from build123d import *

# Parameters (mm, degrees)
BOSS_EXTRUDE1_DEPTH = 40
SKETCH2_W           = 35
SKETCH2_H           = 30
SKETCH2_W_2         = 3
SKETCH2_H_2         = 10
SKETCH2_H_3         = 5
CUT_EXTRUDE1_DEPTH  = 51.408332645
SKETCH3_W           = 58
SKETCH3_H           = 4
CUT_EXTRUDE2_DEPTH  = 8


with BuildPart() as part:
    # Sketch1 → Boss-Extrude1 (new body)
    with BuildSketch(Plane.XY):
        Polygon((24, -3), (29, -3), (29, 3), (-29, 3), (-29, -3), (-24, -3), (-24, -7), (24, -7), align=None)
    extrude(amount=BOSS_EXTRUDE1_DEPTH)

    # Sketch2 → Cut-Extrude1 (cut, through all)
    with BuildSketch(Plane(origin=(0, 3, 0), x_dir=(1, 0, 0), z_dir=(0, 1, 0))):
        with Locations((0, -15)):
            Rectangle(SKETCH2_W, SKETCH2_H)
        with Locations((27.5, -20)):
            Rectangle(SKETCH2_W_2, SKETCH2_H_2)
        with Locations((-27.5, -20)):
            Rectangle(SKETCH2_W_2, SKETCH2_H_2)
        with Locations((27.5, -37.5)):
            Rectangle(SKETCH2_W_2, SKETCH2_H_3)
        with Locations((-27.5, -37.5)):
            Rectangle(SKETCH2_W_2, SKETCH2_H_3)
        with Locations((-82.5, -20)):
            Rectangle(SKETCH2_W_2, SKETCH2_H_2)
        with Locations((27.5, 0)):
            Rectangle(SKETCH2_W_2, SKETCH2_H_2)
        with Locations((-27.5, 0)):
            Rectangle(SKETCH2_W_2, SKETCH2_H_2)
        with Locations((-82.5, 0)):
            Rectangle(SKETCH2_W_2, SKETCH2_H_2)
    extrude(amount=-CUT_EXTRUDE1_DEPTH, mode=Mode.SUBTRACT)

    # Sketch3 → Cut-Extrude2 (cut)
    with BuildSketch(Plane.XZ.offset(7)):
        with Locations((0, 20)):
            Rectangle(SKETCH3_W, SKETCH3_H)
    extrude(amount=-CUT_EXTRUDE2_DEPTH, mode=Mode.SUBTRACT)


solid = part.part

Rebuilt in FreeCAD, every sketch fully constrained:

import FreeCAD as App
import Part
import Sketcher

V = App.Vector


def add_polygon(sketch, points):
    """Adds a closed chain of lines whose ends are joined by coincident constraints."""
    first, n = sketch.GeometryCount, len(points)
    for a, b in zip(points, points[1:] + points[:1]):
        sketch.addGeometry(Part.LineSegment(App.Vector(*a, 0), App.Vector(*b, 0)), False)
    for i in range(n):
        sketch.addConstraint(Sketcher.Constraint("Coincident", first + i, 2, first + (i + 1) % n, 1))

doc = App.newDocument("Part")
body = doc.addObject("PartDesign::Body", "Body")

# Sketch on XY plane
sketch1 = doc.addObject("Sketcher::SketchObject", "Sketch")
body.addObject(sketch1)
sketch1.AttachmentSupport = (doc.XY_Plane, [""])
sketch1.MapMode = "FlatFace"
add_polygon(sketch1, [(24, -3), (29, -3), (29, 3), (-29, 3), (-29, -3), (-24, -3), (-24, -7), (24, -7)])  # lines 0-7
sketch1.addConstraint(Sketcher.Constraint("Horizontal", 0))
sketch1.addConstraint(Sketcher.Constraint("Vertical", 1))
sketch1.addConstraint(Sketcher.Constraint("Horizontal", 2))
sketch1.addConstraint(Sketcher.Constraint("Vertical", 3))
sketch1.addConstraint(Sketcher.Constraint("Horizontal", 4))
sketch1.addConstraint(Sketcher.Constraint("Vertical", 5))
sketch1.addConstraint(Sketcher.Constraint("Horizontal", 6))
sketch1.addConstraint(Sketcher.Constraint("Vertical", 7))
sketch1.addConstraint(Sketcher.Constraint("Symmetric", 0, 2, 2, 2, -1, 1))
sketch1.addConstraint(Sketcher.Constraint("Symmetric", 4, 2, 7, 2, -2))
sketch1.addConstraint(Sketcher.Constraint("DistanceX", 0, 1, 0, 2, 5.0))
sketch1.addConstraint(Sketcher.Constraint("DistanceX", 2, 2, 2, 1, 58.0))
sketch1.addConstraint(Sketcher.Constraint("DistanceY", 1, 1, 1, 2, 6.0))
sketch1.addConstraint(Sketcher.Constraint("DistanceY", 5, 2, 5, 1, 4.0))
pad1 = doc.addObject("PartDesign::Pad", "Pad")
body.addObject(pad1)
pad1.Profile = sketch1
pad1.Length = 40

# Sketch on XZ plane
sketch2 = doc.addObject("Sketcher::SketchObject", "Sketch001")
body.addObject(sketch2)
sketch2.AttachmentSupport = (doc.XZ_Plane, [""])
sketch2.MapMode = "FlatFace"
sketch2.AttachmentOffset = App.Placement(V(0, 0, -3), App.Rotation())
add_polygon(sketch2, [(-17.5, 0), (-17.5, 30), (17.5, 30), (17.5, 0)])  # lines 0-3
add_polygon(sketch2, [(26, 15), (26, 25), (29, 25), (29, 15)])  # lines 4-7
add_polygon(sketch2, [(-29, 15), (-29, 25), (-26, 25), (-26, 15)])  # lines 8-11
add_polygon(sketch2, [(26, 35), (26, 40), (29, 40), (29, 35)])  # lines 12-15
add_polygon(sketch2, [(-29, 35), (-29, 40), (-26, 40), (-26, 35)])  # lines 16-19
add_polygon(sketch2, [(-84, 15), (-84, 25), (-81, 25), (-81, 15)])  # lines 20-23
add_polygon(sketch2, [(26, -5), (26, 5), (29, 5), (29, -5)])  # lines 24-27
add_polygon(sketch2, [(-29, -5), (-29, 5), (-26, 5), (-26, -5)])  # lines 28-31
add_polygon(sketch2, [(-84, -5), (-84, 5), (-81, 5), (-81, -5)])  # lines 32-35
sketch2.addConstraint(Sketcher.Constraint("Vertical", 0))
sketch2.addConstraint(Sketcher.Constraint("Horizontal", 1))
sketch2.addConstraint(Sketcher.Constraint("Vertical", 2))
sketch2.addConstraint(Sketcher.Constraint("Horizontal", 3))
sketch2.addConstraint(Sketcher.Constraint("Vertical", 4))
sketch2.addConstraint(Sketcher.Constraint("Horizontal", 5))
sketch2.addConstraint(Sketcher.Constraint("Vertical", 6))
sketch2.addConstraint(Sketcher.Constraint("Horizontal", 7))
sketch2.addConstraint(Sketcher.Constraint("Vertical", 8))
sketch2.addConstraint(Sketcher.Constraint("Horizontal", 9))
sketch2.addConstraint(Sketcher.Constraint("Vertical", 10))
sketch2.addConstraint(Sketcher.Constraint("Horizontal", 11))
sketch2.addConstraint(Sketcher.Constraint("Vertical", 12))
sketch2.addConstraint(Sketcher.Constraint("Horizontal", 13))
sketch2.addConstraint(Sketcher.Constraint("Vertical", 14))
sketch2.addConstraint(Sketcher.Constraint("Horizontal", 15))
sketch2.addConstraint(Sketcher.Constraint("Vertical", 16))
sketch2.addConstraint(Sketcher.Constraint("Horizontal", 17))
sketch2.addConstraint(Sketcher.Constraint("Vertical", 18))
sketch2.addConstraint(Sketcher.Constraint("Horizontal", 19))
sketch2.addConstraint(Sketcher.Constraint("Vertical", 20))
sketch2.addConstraint(Sketcher.Constraint("Horizontal", 21))
sketch2.addConstraint(Sketcher.Constraint("Vertical", 22))
sketch2.addConstraint(Sketcher.Constraint("Horizontal", 23))
sketch2.addConstraint(Sketcher.Constraint("Vertical", 24))
sketch2.addConstraint(Sketcher.Constraint("Horizontal", 25))
sketch2.addConstraint(Sketcher.Constraint("Vertical", 26))
sketch2.addConstraint(Sketcher.Constraint("Horizontal", 27))
sketch2.addConstraint(Sketcher.Constraint("Vertical", 28))
sketch2.addConstraint(Sketcher.Constraint("Horizontal", 29))
sketch2.addConstraint(Sketcher.Constraint("Vertical", 30))
sketch2.addConstraint(Sketcher.Constraint("Horizontal", 31))
sketch2.addConstraint(Sketcher.Constraint("Vertical", 32))
sketch2.addConstraint(Sketcher.Constraint("Horizontal", 33))
sketch2.addConstraint(Sketcher.Constraint("Vertical", 34))
sketch2.addConstraint(Sketcher.Constraint("Horizontal", 35))
sketch2.addConstraint(Sketcher.Constraint("Symmetric", 2, 2, 3, 2, -1, 1))
sketch2.addConstraint(Sketcher.Constraint("Symmetric", 26, 2, 28, 2, -1, 1))
sketch2.addConstraint(Sketcher.Constraint("Symmetric", 24, 2, 30, 2, -1, 1))
sketch2.addConstraint(Sketcher.Constraint("Symmetric", 5, 2, 8, 2, -2))
sketch2.addConstraint(Sketcher.Constraint("Symmetric", 7, 2, 10, 2, -2))
sketch2.addConstraint(Sketcher.Constraint("Symmetric", 13, 2, 16, 2, -2))
sketch2.addConstraint(Sketcher.Constraint("Symmetric", 15, 2, 18, 2, -2))
sketch2.addConstraint(Sketcher.Constraint("Horizontal", 9, 2, 20, 2))
sketch2.addConstraint(Sketcher.Constraint("Horizontal", 11, 2, 22, 2))
sketch2.addConstraint(Sketcher.Constraint("Horizontal", 25, 2, 28, 2))
sketch2.addConstraint(Sketcher.Constraint("Horizontal", 29, 2, 32, 2))
sketch2.addConstraint(Sketcher.Constraint("Horizontal", 31, 2, 34, 2))
sketch2.addConstraint(Sketcher.Constraint("Vertical", 7, 2, 12, 2))
sketch2.addConstraint(Sketcher.Constraint("Vertical", 6, 2, 13, 2))
sketch2.addConstraint(Sketcher.Constraint("Vertical", 15, 2, 24, 2))
sketch2.addConstraint(Sketcher.Constraint("Vertical", 14, 2, 25, 2))
sketch2.addConstraint(Sketcher.Constraint("Vertical", 23, 2, 32, 2))
sketch2.addConstraint(Sketcher.Constraint("Vertical", 22, 2, 33, 2))
sketch2.addConstraint(Sketcher.Constraint("Equal", 19, 21))
sketch2.addConstraint(Sketcher.Constraint("Equal", 22, 24))
sketch2.addConstraint(Sketcher.Constraint("DistanceX", 1, 1, 1, 2, 35.0))
sketch2.addConstraint(Sketcher.Constraint("DistanceX", 5, 1, 5, 2, 3.0))
sketch2.addConstraint(Sketcher.Constraint("DistanceY", 0, 1, 0, 2, 30.0))
sketch2.addConstraint(Sketcher.Constraint("DistanceY", 4, 1, 4, 2, 10.0))
sketch2.addConstraint(Sketcher.Constraint("DistanceY", 12, 1, 12, 2, 5.0))
sketch2.addConstraint(Sketcher.Constraint("DistanceX", -1, 1, 4, 2, 26.0))
sketch2.addConstraint(Sketcher.Constraint("DistanceY", -1, 1, 4, 2, 25.0))
sketch2.addConstraint(Sketcher.Constraint("DistanceY", -1, 1, 12, 2, 40.0))
sketch2.addConstraint(Sketcher.Constraint("DistanceX", 20, 2, -1, 1, 84.0))
pocket1 = doc.addObject("PartDesign::Pocket", "Pocket")
body.addObject(pocket1)
pocket1.Profile = sketch2
pocket1.Type = "ThroughAll"
pocket1.Reversed = True

# Sketch on XZ plane
sketch3 = doc.addObject("Sketcher::SketchObject", "Sketch002")
body.addObject(sketch3)
sketch3.AttachmentSupport = (doc.XZ_Plane, [""])
sketch3.MapMode = "FlatFace"
sketch3.AttachmentOffset = App.Placement(V(0, 0, 7), App.Rotation())
add_polygon(sketch3, [(-29, 22), (-29, 18), (29, 18), (29, 22)])  # lines 0-3
sketch3.addConstraint(Sketcher.Constraint("Vertical", 0))
sketch3.addConstraint(Sketcher.Constraint("Horizontal", 1))
sketch3.addConstraint(Sketcher.Constraint("Vertical", 2))
sketch3.addConstraint(Sketcher.Constraint("Horizontal", 3))
sketch3.addConstraint(Sketcher.Constraint("DistanceX", 1, 1, 1, 2, 58.0))
sketch3.addConstraint(Sketcher.Constraint("DistanceY", 0, 2, 0, 1, 4.0))
sketch3.addConstraint(Sketcher.Constraint("DistanceX", 0, 2, -1, 1, 29.0))
sketch3.addConstraint(Sketcher.Constraint("DistanceY", -1, 1, 0, 2, 18.0))
pocket2 = doc.addObject("PartDesign::Pocket", "Pocket001")
body.addObject(pocket2)
pocket2.Profile = sketch3
pocket2.Length = 8

doc.recompute()
